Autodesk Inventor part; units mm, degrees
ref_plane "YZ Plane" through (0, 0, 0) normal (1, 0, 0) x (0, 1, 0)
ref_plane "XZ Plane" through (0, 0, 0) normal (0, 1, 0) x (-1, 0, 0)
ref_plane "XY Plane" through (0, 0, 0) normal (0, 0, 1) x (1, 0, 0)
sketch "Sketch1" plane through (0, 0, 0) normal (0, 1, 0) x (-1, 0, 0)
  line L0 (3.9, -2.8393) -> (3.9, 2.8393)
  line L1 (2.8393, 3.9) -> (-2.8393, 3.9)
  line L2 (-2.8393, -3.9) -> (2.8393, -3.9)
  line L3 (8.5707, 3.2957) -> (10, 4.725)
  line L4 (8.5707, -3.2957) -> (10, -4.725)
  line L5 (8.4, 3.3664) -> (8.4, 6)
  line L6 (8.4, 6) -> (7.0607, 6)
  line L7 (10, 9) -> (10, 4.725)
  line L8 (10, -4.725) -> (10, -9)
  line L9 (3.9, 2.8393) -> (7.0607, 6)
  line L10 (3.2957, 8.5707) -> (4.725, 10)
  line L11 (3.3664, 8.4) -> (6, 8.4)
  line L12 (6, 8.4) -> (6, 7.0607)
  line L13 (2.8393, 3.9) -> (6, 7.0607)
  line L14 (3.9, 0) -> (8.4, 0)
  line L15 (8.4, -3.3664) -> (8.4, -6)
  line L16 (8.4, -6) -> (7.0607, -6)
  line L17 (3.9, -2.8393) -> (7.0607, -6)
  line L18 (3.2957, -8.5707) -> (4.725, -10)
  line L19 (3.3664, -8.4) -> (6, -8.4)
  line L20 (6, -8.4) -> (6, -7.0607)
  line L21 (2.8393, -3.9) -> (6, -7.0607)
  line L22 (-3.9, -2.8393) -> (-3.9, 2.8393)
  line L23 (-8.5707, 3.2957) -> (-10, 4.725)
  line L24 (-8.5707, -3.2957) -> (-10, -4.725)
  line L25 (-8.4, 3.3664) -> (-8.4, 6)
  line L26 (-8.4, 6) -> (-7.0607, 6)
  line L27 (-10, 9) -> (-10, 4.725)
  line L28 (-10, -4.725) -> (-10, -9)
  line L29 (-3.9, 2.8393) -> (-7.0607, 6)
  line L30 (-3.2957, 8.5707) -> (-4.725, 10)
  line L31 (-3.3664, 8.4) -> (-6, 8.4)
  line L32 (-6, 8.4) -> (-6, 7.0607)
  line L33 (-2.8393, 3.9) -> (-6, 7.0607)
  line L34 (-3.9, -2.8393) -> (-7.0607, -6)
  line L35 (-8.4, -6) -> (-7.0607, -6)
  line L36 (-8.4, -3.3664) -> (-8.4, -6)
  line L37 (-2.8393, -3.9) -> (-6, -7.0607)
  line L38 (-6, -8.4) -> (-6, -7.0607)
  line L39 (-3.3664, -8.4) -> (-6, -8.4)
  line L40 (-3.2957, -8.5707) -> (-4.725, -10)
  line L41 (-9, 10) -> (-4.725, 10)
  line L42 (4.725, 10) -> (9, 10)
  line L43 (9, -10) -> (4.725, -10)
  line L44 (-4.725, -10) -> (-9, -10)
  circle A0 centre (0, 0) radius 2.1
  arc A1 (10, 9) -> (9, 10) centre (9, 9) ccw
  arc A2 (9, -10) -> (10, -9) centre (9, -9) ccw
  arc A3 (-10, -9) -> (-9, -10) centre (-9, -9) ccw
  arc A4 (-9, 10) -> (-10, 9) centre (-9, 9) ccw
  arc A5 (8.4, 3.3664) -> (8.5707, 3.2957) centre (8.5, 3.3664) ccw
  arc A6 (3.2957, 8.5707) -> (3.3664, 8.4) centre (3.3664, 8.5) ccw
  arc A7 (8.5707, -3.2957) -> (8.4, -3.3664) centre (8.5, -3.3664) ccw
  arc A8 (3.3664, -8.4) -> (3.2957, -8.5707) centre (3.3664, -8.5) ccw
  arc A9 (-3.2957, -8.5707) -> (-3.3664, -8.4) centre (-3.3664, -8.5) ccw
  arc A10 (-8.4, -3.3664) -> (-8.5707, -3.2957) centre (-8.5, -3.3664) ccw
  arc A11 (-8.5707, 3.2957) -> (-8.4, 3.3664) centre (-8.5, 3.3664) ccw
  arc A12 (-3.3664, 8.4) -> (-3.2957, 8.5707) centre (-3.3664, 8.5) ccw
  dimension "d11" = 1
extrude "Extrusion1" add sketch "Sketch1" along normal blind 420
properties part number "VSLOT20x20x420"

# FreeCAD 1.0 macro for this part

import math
import FreeCAD as App
import Part
import Sketcher
Q = App.Units.Quantity

doc = App.newDocument("Part")
body = doc.addObject("PartDesign::Body", "Body")

# Sketch on XZ plane
sketch1 = body.newObject("Sketcher::SketchObject", "Sketch")
sketch1.AttachmentSupport = (doc.getObject("XZ_Plane"), [""])
sketch1.MapMode = "FlatFace"
sketch1.addGeometry(Part.LineSegment(App.Vector(-7.06, -6, 0), App.Vector(-3.9, -2.84, 0)), False)
sketch1.addGeometry(Part.LineSegment(App.Vector(-3.9, -2.84, 0), App.Vector(-3.9, 2.84, 0)), False)
sketch1.addGeometry(Part.LineSegment(App.Vector(-3.9, 2.84, 0), App.Vector(-7.06, 6, 0)), False)
sketch1.addGeometry(Part.LineSegment(App.Vector(-7.06, 6, 0), App.Vector(-8.4, 6, 0)), False)
sketch1.addGeometry(Part.LineSegment(App.Vector(-8.4, 6, 0), App.Vector(-8.4, 3.37, 0)), False)
sketch1.addGeometry(Part.ArcOfCircle(Part.Circle(App.Vector(-8.5, 3.37, 0), App.Vector(0, 0, 1), 0.1), math.radians(-135), math.radians(0)), False)
sketch1.addGeometry(Part.LineSegment(App.Vector(-8.57, 3.3, 0), App.Vector(-10, 4.72, 0)), False)
sketch1.addGeometry(Part.LineSegment(App.Vector(-10, 4.72, 0), App.Vector(-10, 9, 0)), False)
sketch1.addGeometry(Part.ArcOfCircle(Part.Circle(App.Vector(-9, 9, 0), App.Vector(0, 0, 1), 1), math.radians(90), math.radians(180)), False)
sketch1.addGeometry(Part.LineSegment(App.Vector(-9, 10, 0), App.Vector(-4.72, 10, 0)), False)
sketch1.addGeometry(Part.LineSegment(App.Vector(-4.72, 10, 0), App.Vector(-3.3, 8.57, 0)), False)
sketch1.addGeometry(Part.ArcOfCircle(Part.Circle(App.Vector(-3.37, 8.5, 0), App.Vector(0, 0, 1), 0.1), math.radians(-90), math.radians(45)), False)
sketch1.addGeometry(Part.LineSegment(App.Vector(-3.37, 8.4, 0), App.Vector(-6, 8.4, 0)), False)
sketch1.addGeometry(Part.LineSegment(App.Vector(-6, 8.4, 0), App.Vector(-6, 7.06, 0)), False)
sketch1.addGeometry(Part.LineSegment(App.Vector(-6, 7.06, 0), App.Vector(-2.84, 3.9, 0)), False)
sketch1.addGeometry(Part.LineSegment(App.Vector(-2.84, 3.9, 0), App.Vector(2.84, 3.9, 0)), False)
sketch1.addGeometry(Part.LineSegment(App.Vector(2.84, 3.9, 0), App.Vector(6, 7.06, 0)), False)
sketch1.addGeometry(Part.LineSegment(App.Vector(6, 7.06, 0), App.Vector(6, 8.4, 0)), False)
sketch1.addGeometry(Part.LineSegment(App.Vector(6, 8.4, 0), App.Vector(3.37, 8.4, 0)), False)
sketch1.addGeometry(Part.ArcOfCircle(Part.Circle(App.Vector(3.37, 8.5, 0), App.Vector(0, 0, 1), 0.1), math.radians(135), math.radians(270)), False)
sketch1.addGeometry(Part.LineSegment(App.Vector(3.3, 8.57, 0), App.Vector(4.72, 10, 0)), False)
sketch1.addGeometry(Part.LineSegment(App.Vector(4.72, 10, 0), App.Vector(9, 10, 0)), False)
sketch1.addGeometry(Part.ArcOfCircle(Part.Circle(App.Vector(9, 9, 0), App.Vector(0, 0, 1), 1), math.radians(0), math.radians(90)), False)
sketch1.addGeometry(Part.LineSegment(App.Vector(10, 9, 0), App.Vector(10, 4.72, 0)), False)
sketch1.addGeometry(Part.LineSegment(App.Vector(10, 4.72, 0), App.Vector(8.57, 3.3, 0)), False)
sketch1.addGeometry(Part.ArcOfCircle(Part.Circle(App.Vector(8.5, 3.37, 0), App.Vector(0, 0, 1), 0.1), math.radians(180), math.radians(315)), False)
sketch1.addGeometry(Part.LineSegment(App.Vector(8.4, 3.37, 0), App.Vector(8.4, 6, 0)), False)
sketch1.addGeometry(Part.LineSegment(App.Vector(8.4, 6, 0), App.Vector(7.06, 6, 0)), False)
sketch1.addGeometry(Part.LineSegment(App.Vector(7.06, 6, 0), App.Vector(3.9, 2.84, 0)), False)
sketch1.addGeometry(Part.LineSegment(App.Vector(3.9, 2.84, 0), App.Vector(3.9, -2.84, 0)), False)
sketch1.addGeometry(Part.LineSegment(App.Vector(3.9, -2.84, 0), App.Vector(7.06, -6, 0)), False)
sketch1.addGeometry(Part.LineSegment(App.Vector(7.06, -6, 0), App.Vector(8.4, -6, 0)), False)
sketch1.addGeometry(Part.LineSegment(App.Vector(8.4, -6, 0), App.Vector(8.4, -3.37, 0)), False)
sketch1.addGeometry(Part.ArcOfCircle(Part.Circle(App.Vector(8.5, -3.37, 0), App.Vector(0, 0, 1), 0.1), math.radians(45), math.radians(180)), False)
sketch1.addGeometry(Part.LineSegment(App.Vector(8.57, -3.3, 0), App.Vector(10, -4.72, 0)), False)
sketch1.addGeometry(Part.LineSegment(App.Vector(10, -4.72, 0), App.Vector(10, -9, 0)), False)
sketch1.addGeometry(Part.ArcOfCircle(Part.Circle(App.Vector(9, -9, 0), App.Vector(0, 0, 1), 1), math.radians(-90), math.radians(0)), False)
sketch1.addGeometry(Part.LineSegment(App.Vector(9, -10, 0), App.Vector(4.72, -10, 0)), False)
sketch1.addGeometry(Part.LineSegment(App.Vector(4.72, -10, 0), App.Vector(3.3, -8.57, 0)), False)
sketch1.addGeometry(Part.ArcOfCircle(Part.Circle(App.Vector(3.37, -8.5, 0), App.Vector(0, 0, 1), 0.1), math.radians(90), math.radians(225)), False)
sketch1.addGeometry(Part.LineSegment(App.Vector(3.37, -8.4, 0), App.Vector(6, -8.4, 0)), False)
sketch1.addGeometry(Part.LineSegment(App.Vector(6, -8.4, 0), App.Vector(6, -7.06, 0)), False)
sketch1.addGeometry(Part.LineSegment(App.Vector(6, -7.06, 0), App.Vector(2.84, -3.9, 0)), False)
sketch1.addGeometry(Part.LineSegment(App.Vector(2.84, -3.9, 0), App.Vector(-2.84, -3.9, 0)), False)
sketch1.addGeometry(Part.LineSegment(App.Vector(-2.84, -3.9, 0), App.Vector(-6, -7.06, 0)), False)
sketch1.addGeometry(Part.LineSegment(App.Vector(-6, -7.06, 0), App.Vector(-6, -8.4, 0)), False)
sketch1.addGeometry(Part.LineSegment(App.Vector(-6, -8.4, 0), App.Vector(-3.37, -8.4, 0)), False)
sketch1.addGeometry(Part.ArcOfCircle(Part.Circle(App.Vector(-3.37, -8.5, 0), App.Vector(0, 0, 1), 0.1), math.radians(-45), math.radians(90)), False)
sketch1.addGeometry(Part.LineSegment(App.Vector(-3.3, -8.57, 0), App.Vector(-4.72, -10, 0)), False)
sketch1.addGeometry(Part.LineSegment(App.Vector(-4.72, -10, 0), App.Vector(-9, -10, 0)), False)
sketch1.addGeometry(Part.ArcOfCircle(Part.Circle(App.Vector(-9, -9, 0), App.Vector(0, 0, 1), 1), math.radians(180), math.radians(270)), False)
sketch1.addGeometry(Part.LineSegment(App.Vector(-10, -9, 0), App.Vector(-10, -4.72, 0)), False)
sketch1.addGeometry(Part.LineSegment(App.Vector(-10, -4.72, 0), App.Vector(-8.57, -3.3, 0)), False)
sketch1.addGeometry(Part.ArcOfCircle(Part.Circle(App.Vector(-8.5, -3.37, 0), App.Vector(0, 0, 1), 0.1), math.radians(0), math.radians(135)), False)
sketch1.addGeometry(Part.LineSegment(App.Vector(-8.4, -3.37, 0), App.Vector(-8.4, -6, 0)), False)
sketch1.addGeometry(Part.LineSegment(App.Vector(-8.4, -6, 0), App.Vector(-7.06, -6, 0)), False)
sketch1.addGeometry(Part.Circle(App.Vector(0, 0, 0), App.Vector(0, 0, 1), 2.1), False)
sketch1.addConstraint(Sketcher.Constraint("Coincident", 0, 2, 1, 1))
sketch1.addConstraint(Sketcher.Constraint("Coincident", 1, 2, 2, 1))
sketch1.addConstraint(Sketcher.Constraint("Coincident", 2, 2, 3, 1))
sketch1.addConstraint(Sketcher.Constraint("Coincident", 3, 2, 4, 1))
sketch1.addConstraint(Sketcher.Constraint("Tangent", 4, 2, 5, 2))
sketch1.addConstraint(Sketcher.Constraint("Tangent", 5, 1, 6, 1))
sketch1.addConstraint(Sketcher.Constraint("Coincident", 6, 2, 7, 1))
sketch1.addConstraint(Sketcher.Constraint("Tangent", 7, 2, 8, 2))
sketch1.addConstraint(Sketcher.Constraint("Tangent", 8, 1, 9, 1))
sketch1.addConstraint(Sketcher.Constraint("Coincident", 9, 2, 10, 1))
sketch1.addConstraint(Sketcher.Constraint("Tangent", 10, 2, 11, 2))
sketch1.addConstraint(Sketcher.Constraint("Tangent", 11, 1, 12, 1))
sketch1.addConstraint(Sketcher.Constraint("Coincident", 12, 2, 13, 1))
sketch1.addConstraint(Sketcher.Constraint("Coincident", 13, 2, 14, 1))
sketch1.addConstraint(Sketcher.Constraint("Coincident", 14, 2, 15, 1))
sketch1.addConstraint(Sketcher.Constraint("Coincident", 15, 2, 16, 1))
sketch1.addConstraint(Sketcher.Constraint("Coincident", 16, 2, 17, 1))
sketch1.addConstraint(Sketcher.Constraint("Coincident", 17, 2, 18, 1))
sketch1.addConstraint(Sketcher.Constraint("Tangent", 18, 2, 19, 2))
sketch1.addConstraint(Sketcher.Constraint("Tangent", 19, 1, 20, 1))
sketch1.addConstraint(Sketcher.Constraint("Coincident", 20, 2, 21, 1))
sketch1.addConstraint(Sketcher.Constraint("Tangent", 21, 2, 22, 2))
sketch1.addConstraint(Sketcher.Constraint("Tangent", 22, 1, 23, 1))
sketch1.addConstraint(Sketcher.Constraint("Coincident", 23, 2, 24, 1))
sketch1.addConstraint(Sketcher.Constraint("Tangent", 24, 2, 25, 2))
sketch1.addConstraint(Sketcher.Constraint("Tangent", 25, 1, 26, 1))
sketch1.addConstraint(Sketcher.Constraint("Coincident", 26, 2, 27, 1))
sketch1.addConstraint(Sketcher.Constraint("Coincident", 27, 2, 28, 1))
sketch1.addConstraint(Sketcher.Constraint("Coincident", 28, 2, 29, 1))
sketch1.addConstraint(Sketcher.Constraint("Coincident", 29, 2, 30, 1))
sketch1.addConstraint(Sketcher.Constraint("Coincident", 30, 2, 31, 1))
sketch1.addConstraint(Sketcher.Constraint("Coincident", 31, 2, 32, 1))
sketch1.addConstraint(Sketcher.Constraint("Tangent", 32, 2, 33, 2))
sketch1.addConstraint(Sketcher.Constraint("Tangent", 33, 1, 34, 1))
sketch1.addConstraint(Sketcher.Constraint("Coincident", 34, 2, 35, 1))
sketch1.addConstraint(Sketcher.Constraint("Tangent", 35, 2, 36, 2))
sketch1.addConstraint(Sketcher.Constraint("Tangent", 36, 1, 37, 1))
sketch1.addConstraint(Sketcher.Constraint("Coincident", 37, 2, 38, 1))
sketch1.addConstraint(Sketcher.Constraint("Tangent", 38, 2, 39, 2))
sketch1.addConstraint(Sketcher.Constraint("Tangent", 39, 1, 40, 1))
sketch1.addConstraint(Sketcher.Constraint("Coincident", 40, 2, 41, 1))
sketch1.addConstraint(Sketcher.Constraint("Coincident", 41, 2, 42, 1))
sketch1.addConstraint(Sketcher.Constraint("Coincident", 42, 2, 43, 1))
sketch1.addConstraint(Sketcher.Constraint("Coincident", 43, 2, 44, 1))
sketch1.addConstraint(Sketcher.Constraint("Coincident", 44, 2, 45, 1))
sketch1.addConstraint(Sketcher.Constraint("Coincident", 45, 2, 46, 1))
sketch1.addConstraint(Sketcher.Constraint("Tangent", 46, 2, 47, 2))
sketch1.addConstraint(Sketcher.Constraint("Tangent", 47, 1, 48, 1))
sketch1.addConstraint(Sketcher.Constraint("Coincident", 48, 2, 49, 1))
sketch1.addConstraint(Sketcher.Constraint("Tangent", 49, 2, 50, 2))
sketch1.addConstraint(Sketcher.Constraint("Tangent", 50, 1, 51, 1))
sketch1.addConstraint(Sketcher.Constraint("Coincident", 51, 2, 52, 1))
sketch1.addConstraint(Sketcher.Constraint("Tangent", 52, 2, 53, 2))
sketch1.addConstraint(Sketcher.Constraint("Tangent", 53, 1, 54, 1))
sketch1.addConstraint(Sketcher.Constraint("Coincident", 54, 2, 55, 1))
sketch1.addConstraint(Sketcher.Constraint("Coincident", 55, 2, 0, 1))
sketch1.addConstraint(Sketcher.Constraint("Vertical", 1))
sketch1.addConstraint(Sketcher.Constraint("Horizontal", 3))
sketch1.addConstraint(Sketcher.Constraint("Vertical", 4))
sketch1.addConstraint(Sketcher.Constraint("Vertical", 7))
sketch1.addConstraint(Sketcher.Constraint("Horizontal", 9))
sketch1.addConstraint(Sketcher.Constraint("Horizontal", 12))
sketch1.addConstraint(Sketcher.Constraint("Vertical", 13))
sketch1.addConstraint(Sketcher.Constraint("Horizontal", 15))
sketch1.addConstraint(Sketcher.Constraint("Vertical", 17))
sketch1.addConstraint(Sketcher.Constraint("Horizontal", 18))
sketch1.addConstraint(Sketcher.Constraint("Horizontal", 21))
sketch1.addConstraint(Sketcher.Constraint("Vertical", 23))
sketch1.addConstraint(Sketcher.Constraint("Vertical", 26))
sketch1.addConstraint(Sketcher.Constraint("Horizontal", 27))
sketch1.addConstraint(Sketcher.Constraint("Vertical", 29))
sketch1.addConstraint(Sketcher.Constraint("Horizontal", 31))
sketch1.addConstraint(Sketcher.Constraint("Vertical", 32))
sketch1.addConstraint(Sketcher.Constraint("Vertical", 35))
sketch1.addConstraint(Sketcher.Constraint("Horizontal", 37))
sketch1.addConstraint(Sketcher.Constraint("Horizontal", 40))
sketch1.addConstraint(Sketcher.Constraint("Vertical", 41))
sketch1.addConstraint(Sketcher.Constraint("Horizontal", 43))
sketch1.addConstraint(Sketcher.Constraint("Vertical", 45))
sketch1.addConstraint(Sketcher.Constraint("Horizontal", 46))
sketch1.addConstraint(Sketcher.Constraint("Horizontal", 49))
sketch1.addConstraint(Sketcher.Constraint("Vertical", 51))
sketch1.addConstraint(Sketcher.Constraint("Vertical", 54))
sketch1.addConstraint(Sketcher.Constraint("Horizontal", 55))
sketch1.addConstraint(Sketcher.Constraint("Coincident", 56, 3, -1, 1))
sketch1.addConstraint(Sketcher.Constraint("Equal", 5, 11))
sketch1.addConstraint(Sketcher.Constraint("Equal", 11, 19))
sketch1.addConstraint(Sketcher.Constraint("Equal", 8, 22))
sketch1.addConstraint(Sketcher.Constraint("Equal", 19, 25))
sketch1.addConstraint(Sketcher.Constraint("Equal", 25, 33))
sketch1.addConstraint(Sketcher.Constraint("Equal", 22, 36))
sketch1.addConstraint(Sketcher.Constraint("Equal", 33, 39))
sketch1.addConstraint(Sketcher.Constraint("Equal", 39, 47))
sketch1.addConstraint(Sketcher.Constraint("Equal", 36, 50))
sketch1.addConstraint(Sketcher.Constraint("Equal", 47, 53))
sketch1.addConstraint(Sketcher.Constraint("Symmetric", 5, 3, 33, 3, -1, 1))
sketch1.addConstraint(Sketcher.Constraint("Symmetric", 8, 3, 36, 3, -1, 1))
sketch1.addConstraint(Sketcher.Constraint("Symmetric", 11, 3, 39, 3, -1, 1))
sketch1.addConstraint(Sketcher.Constraint("Symmetric", 19, 3, 47, 3, -1, 1))
sketch1.addConstraint(Sketcher.Constraint("Symmetric", 22, 3, 50, 3, -1, 1))
sketch1.addConstraint(Sketcher.Constraint("Symmetric", 25, 3, 53, 3, -1, 1))
sketch1.addConstraint(Sketcher.Constraint("Symmetric", 0, 2, 28, 2, -1, 1))
sketch1.addConstraint(Sketcher.Constraint("Symmetric", 2, 2, 30, 2, -1, 1))
sketch1.addConstraint(Sketcher.Constraint("Symmetric", 13, 2, 41, 2, -1, 1))
sketch1.addConstraint(Sketcher.Constraint("Symmetric", 14, 2, 42, 2, -1, 1))
sketch1.addConstraint(Sketcher.Constraint("Symmetric", 16, 2, 44, 2, -1, 1))
sketch1.addConstraint(Sketcher.Constraint("Symmetric", 27, 2, 55, 2, -1, 1))
sketch1.addConstraint(Sketcher.Constraint("Symmetric", 11, 3, 19, 3, -2))
sketch1.addConstraint(Sketcher.Constraint("Symmetric", 8, 3, 22, 3, -2))
sketch1.addConstraint(Sketcher.Constraint("Symmetric", 5, 3, 25, 3, -2))
sketch1.addConstraint(Sketcher.Constraint("Symmetric", 13, 2, 16, 2, -2))
sketch1.addConstraint(Sketcher.Constraint("Symmetric", 2, 2, 27, 2, -2))
sketch1.addConstraint(Sketcher.Constraint("Perpendicular", 0, 2))
sketch1.addConstraint(Sketcher.Constraint("Parallel", 2, 6))
sketch1.addConstraint(Sketcher.Constraint("Parallel", 6, 10))
sketch1.addConstraint(Sketcher.Constraint("Parallel", 10, 14))
sketch1.addConstraint(Sketcher.Constraint("Perpendicular", 14, 16))
sketch1.addConstraint(Sketcher.Constraint("Parallel", 16, 20))
sketch1.addConstraint(Sketcher.Constraint("Parallel", 20, 24))
sketch1.addConstraint(Sketcher.Constraint("Perpendicular", 28, 30))
sketch1.addConstraint(Sketcher.Constraint("Parallel", 30, 34))
sketch1.addConstraint(Sketcher.Constraint("Parallel", 34, 38))
sketch1.addConstraint(Sketcher.Constraint("Perpendicular", 42, 44))
sketch1.addConstraint(Sketcher.Constraint("Parallel", 44, 48))
sketch1.addConstraint(Sketcher.Constraint("Parallel", 48, 52))
sketch1.addConstraint(Sketcher.Constraint("Horizontal", 10, 2, 19, 1))
sketch1.addConstraint(Sketcher.Constraint("Equal", 43, 1))
sketch1.addConstraint(Sketcher.Constraint("Equal", 46, 4))
sketch1.addConstraint(Sketcher.Constraint("Equal", 49, 7))
sketch1.addConstraint(Sketcher.Constraint("Equal", 55, 13))
sketch1.addConstraint(Sketcher.Constraint("Equal", 6, 10))
sketch1.addConstraint(Sketcher.Constraint("Equal", 2, 14))
sketch1.addConstraint(Sketcher.Constraint("Radius", 8, Q("1 mm")))
sketch1.addConstraint(Sketcher.Constraint("Diameter", 56, Q("4.2 mm")))
sketch1.addConstraint(Sketcher.Constraint("Radius", 5, Q("0.1 mm")))
sketch1.addConstraint(Sketcher.Constraint("DistanceX", 8, 3, -1, 1, Q("9 mm")))
sketch1.addConstraint(Sketcher.Constraint("DistanceY", -1, 1, 2, 2, Q("6 mm")))
sketch1.addConstraint(Sketcher.Constraint("DistanceX", 5, 3, -1, 1, Q("8.5 mm")))
sketch1.addConstraint(Sketcher.Constraint("DistanceX", 0, 2, -1, 1, Q("3.9 mm")))
sketch1.addConstraint(Sketcher.Constraint("Distance", 0, Q("4.47 mm")))
sketch1.addConstraint(Sketcher.Constraint("DistanceX", 9, 1, 9, 2, Q("4.275 mm")))
pad1 = body.newObject("PartDesign::Pad", "Pad")
pad1.Profile = sketch1
pad1.Length = 420
pad1.Reversed = True

doc.recompute()
